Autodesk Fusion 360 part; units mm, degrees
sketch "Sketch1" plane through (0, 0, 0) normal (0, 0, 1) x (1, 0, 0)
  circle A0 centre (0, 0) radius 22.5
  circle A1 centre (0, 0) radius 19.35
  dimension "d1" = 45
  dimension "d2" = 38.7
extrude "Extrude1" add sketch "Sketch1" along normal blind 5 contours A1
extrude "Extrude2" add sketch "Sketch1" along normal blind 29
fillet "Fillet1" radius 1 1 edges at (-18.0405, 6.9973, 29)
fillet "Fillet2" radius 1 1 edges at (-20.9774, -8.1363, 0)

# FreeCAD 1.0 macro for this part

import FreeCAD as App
import Part
import Sketcher
from FreeCAD import Vector
Q = App.Units.Quantity


def edges_at(feature, points):
    """Names of the edges that pass closest to the given points."""
    edges = feature.Shape.Edges
    near = lambda p: min(range(len(edges)), key=lambda i: edges[i].distToShape(Part.Vertex(*p))[0])
    return sorted({f"Edge{near(p) + 1}" for p in points})

doc = App.newDocument("Part")
body = doc.addObject("PartDesign::Body", "Body")

# Sketch on XY plane
sketch1 = body.newObject("Sketcher::SketchObject", "Sketch")
sketch1.AttachmentSupport = (doc.getObject("XY_Plane"), [""])
sketch1.MapMode = "FlatFace"
sketch1.addGeometry(Part.Circle(Vector(0, 0, 0), Vector(0, 0, 1), 19), False)
sketch1.addConstraint(Sketcher.Constraint("Coincident", 0, 3, -1, 1))
sketch1.addConstraint(Sketcher.Constraint("Diameter", 0, Q("38.7 mm")))
pad1 = body.newObject("PartDesign::Pad", "Pad")
pad1.Profile = sketch1
pad1.Length = 5

# Sketch on XY plane
sketch2 = body.newObject("Sketcher::SketchObject", "Sketch001")
sketch2.AttachmentSupport = (doc.getObject("XY_Plane"), [""])
sketch2.MapMode = "FlatFace"
sketch2.addGeometry(Part.Circle(Vector(0, 0, 0), Vector(0, 0, 1), 22), False)
sketch2.addGeometry(Part.Circle(Vector(0, 0, 0), Vector(0, 0, 1), 19), False)
sketch2.addConstraint(Sketcher.Constraint("Coincident", 0, 3, -1, 1))
sketch2.addConstraint(Sketcher.Constraint("Coincident", 1, 3, -1, 1))
sketch2.addConstraint(Sketcher.Constraint("Diameter", 0, Q("45 mm")))
sketch2.addConstraint(Sketcher.Constraint("Diameter", 1, Q("38.7 mm")))
pad2 = body.newObject("PartDesign::Pad", "Pad001")
pad2.Profile = sketch2
pad2.Length = 29
doc.recompute()

fillet = body.newObject("PartDesign::Fillet", "Fillet")
fillet.Base = (pad2, edges_at(pad2, [(-18.041, 6.997, 29)]))
fillet.Radius = 1
doc.recompute()

fillet2 = body.newObject("PartDesign::Fillet", "Fillet001")
fillet2.Base = (fillet, edges_at(fillet, [(-20.977, -8.136, 0)]))
fillet2.Radius = 1

doc.recompute()
